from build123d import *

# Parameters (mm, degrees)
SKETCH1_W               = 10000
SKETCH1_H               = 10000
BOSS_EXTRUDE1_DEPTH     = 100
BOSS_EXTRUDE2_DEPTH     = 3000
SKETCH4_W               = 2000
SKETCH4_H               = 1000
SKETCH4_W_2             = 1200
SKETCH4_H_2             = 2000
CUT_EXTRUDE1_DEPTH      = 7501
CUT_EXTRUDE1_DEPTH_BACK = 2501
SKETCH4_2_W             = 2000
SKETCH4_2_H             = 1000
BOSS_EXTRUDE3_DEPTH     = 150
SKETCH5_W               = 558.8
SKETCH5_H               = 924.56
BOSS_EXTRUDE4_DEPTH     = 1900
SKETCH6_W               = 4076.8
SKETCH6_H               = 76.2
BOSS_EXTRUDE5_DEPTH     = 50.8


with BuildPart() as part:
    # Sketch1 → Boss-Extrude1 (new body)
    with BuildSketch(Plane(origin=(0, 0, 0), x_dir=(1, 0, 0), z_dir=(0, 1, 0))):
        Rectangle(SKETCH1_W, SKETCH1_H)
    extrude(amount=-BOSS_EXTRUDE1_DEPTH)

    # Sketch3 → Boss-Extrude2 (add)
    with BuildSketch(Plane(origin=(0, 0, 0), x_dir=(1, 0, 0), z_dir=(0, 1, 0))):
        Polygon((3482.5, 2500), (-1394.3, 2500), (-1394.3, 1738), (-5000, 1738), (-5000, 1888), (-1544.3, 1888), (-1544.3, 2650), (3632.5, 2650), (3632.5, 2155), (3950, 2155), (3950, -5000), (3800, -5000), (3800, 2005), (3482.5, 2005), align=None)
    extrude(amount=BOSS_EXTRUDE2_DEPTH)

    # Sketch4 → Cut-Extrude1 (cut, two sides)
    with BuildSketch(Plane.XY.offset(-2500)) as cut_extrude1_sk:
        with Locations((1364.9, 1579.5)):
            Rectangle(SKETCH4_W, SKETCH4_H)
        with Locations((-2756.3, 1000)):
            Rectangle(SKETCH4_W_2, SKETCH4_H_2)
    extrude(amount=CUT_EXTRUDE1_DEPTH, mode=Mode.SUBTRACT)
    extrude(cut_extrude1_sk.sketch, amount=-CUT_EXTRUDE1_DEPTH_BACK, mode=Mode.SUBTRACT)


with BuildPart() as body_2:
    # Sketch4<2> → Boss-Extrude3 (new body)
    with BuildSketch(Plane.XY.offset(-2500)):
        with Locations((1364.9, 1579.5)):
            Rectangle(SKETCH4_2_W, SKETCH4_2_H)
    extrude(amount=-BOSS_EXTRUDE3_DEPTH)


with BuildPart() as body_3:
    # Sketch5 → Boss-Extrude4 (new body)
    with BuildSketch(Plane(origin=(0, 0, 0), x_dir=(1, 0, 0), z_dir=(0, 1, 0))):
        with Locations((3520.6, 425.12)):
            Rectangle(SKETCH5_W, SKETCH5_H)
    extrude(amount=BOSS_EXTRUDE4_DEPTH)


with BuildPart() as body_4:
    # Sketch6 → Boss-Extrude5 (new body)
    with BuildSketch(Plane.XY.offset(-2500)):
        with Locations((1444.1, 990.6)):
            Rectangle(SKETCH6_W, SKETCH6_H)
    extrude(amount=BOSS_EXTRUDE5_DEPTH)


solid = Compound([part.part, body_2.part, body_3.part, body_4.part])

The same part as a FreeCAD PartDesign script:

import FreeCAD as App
import Part
import Sketcher

V = App.Vector
Q = App.Units.Quantity

doc = App.newDocument("Part")
body = doc.addObject("PartDesign::Body", "Body")

# Sketch on XZ plane
sketch1 = body.newObject("Sketcher::SketchObject", "Sketch")
sketch1.AttachmentSupport = (doc.getObject("XZ_Plane"), [""])
sketch1.MapMode = "FlatFace"
sketch1.addGeometry([
    Part.LineSegment(V(-5000, -5000, 0), V(-5000, 5000, 0)),
    Part.LineSegment(V(-5000, 5000, 0), V(5000, 5000, 0)),
    Part.LineSegment(V(5000, 5000, 0), V(5000, -5000, 0)),
    Part.LineSegment(V(5000, -5000, 0), V(-5000, -5000, 0)),
], False)
sketch1.addConstraint([
    Sketcher.Constraint("Coincident", 0, 2, 1, 1),
    Sketcher.Constraint("Coincident", 1, 2, 2, 1),
    Sketcher.Constraint("Coincident", 2, 2, 3, 1),
    Sketcher.Constraint("Coincident", 3, 2, 0, 1),
    Sketcher.Constraint("Vertical", 0),
    Sketcher.Constraint("Horizontal", 1),
    Sketcher.Constraint("Vertical", 2),
    Sketcher.Constraint("Horizontal", 3),
    Sketcher.Constraint("Symmetric", 0, 2, 2, 2, -1, 1),
    Sketcher.Constraint("Equal", 3, 0),
    Sketcher.Constraint("DistanceX", 1, 1, 1, 2, Q("10000 mm")),
])
pad1 = body.newObject("PartDesign::Pad", "Pad")
pad1.Profile = sketch1
pad1.Length = 100

# Sketch on XZ plane
sketch2 = body.newObject("Sketcher::SketchObject", "Sketch001")
sketch2.AttachmentSupport = (doc.getObject("XZ_Plane"), [""])
sketch2.MapMode = "FlatFace"
sketch2.addGeometry([
    Part.LineSegment(V(-1394, -2500, 0), V(3482, -2500, 0)),  # 0
    Part.LineSegment(V(3482, -2500, 0), V(3482, -2005, 0)),  # 1
    Part.LineSegment(V(3482, -2005, 0), V(3800, -2005, 0)),  # 2
    Part.LineSegment(V(3800, -2005, 0), V(3800, 5000, 0)),  # 3
    Part.LineSegment(V(3800, 5000, 0), V(3950, 5000, 0)),  # 4
    Part.LineSegment(V(3950, 5000, 0), V(3950, -2155, 0)),  # 5
    Part.LineSegment(V(3950, -2155, 0), V(3632, -2155, 0)),  # 6
    Part.LineSegment(V(3632, -2155, 0), V(3632, -2650, 0)),  # 7
    Part.LineSegment(V(3632, -2650, 0), V(-1544, -2650, 0)),  # 8
    Part.LineSegment(V(-1544, -2650, 0), V(-1544, -1888, 0)),  # 9
    Part.LineSegment(V(-1544, -1888, 0), V(-5000, -1888, 0)),  # 10
    Part.LineSegment(V(-5000, -1888, 0), V(-5000, -1738, 0)),  # 11
    Part.LineSegment(V(-5000, -1738, 0), V(-1394, -1738, 0)),  # 12
    Part.LineSegment(V(-1394, -1738, 0), V(-1394, -2500, 0)),  # 13
], False)
sketch2.addConstraint([
    Sketcher.Constraint("Coincident", 0, 2, 1, 1),
    Sketcher.Constraint("Coincident", 1, 2, 2, 1),
    Sketcher.Constraint("Coincident", 2, 2, 3, 1),
    Sketcher.Constraint("Coincident", 3, 2, 4, 1),
    Sketcher.Constraint("Coincident", 4, 2, 5, 1),
    Sketcher.Constraint("Coincident", 5, 2, 6, 1),
    Sketcher.Constraint("Coincident", 6, 2, 7, 1),
    Sketcher.Constraint("Coincident", 7, 2, 8, 1),
    Sketcher.Constraint("Coincident", 8, 2, 9, 1),
    Sketcher.Constraint("Coincident", 9, 2, 10, 1),
    Sketcher.Constraint("Coincident", 10, 2, 11, 1),
    Sketcher.Constraint("Coincident", 11, 2, 12, 1),
    Sketcher.Constraint("Coincident", 12, 2, 13, 1),
    Sketcher.Constraint("Coincident", 13, 2, 0, 1),
    Sketcher.Constraint("Horizontal", 0),
    Sketcher.Constraint("Vertical", 1),
    Sketcher.Constraint("Horizontal", 2),
    Sketcher.Constraint("Vertical", 3),
    Sketcher.Constraint("Horizontal", 4),
    Sketcher.Constraint("Vertical", 5),
    Sketcher.Constraint("Horizontal", 6),
    Sketcher.Constraint("Vertical", 7),
    Sketcher.Constraint("Horizontal", 8),
    Sketcher.Constraint("Vertical", 9),
    Sketcher.Constraint("Horizontal", 10),
    Sketcher.Constraint("Vertical", 11),
    Sketcher.Constraint("Horizontal", 12),
    Sketcher.Constraint("Vertical", 13),
    Sketcher.Constraint("Equal", 2, 6),
    Sketcher.Constraint("Equal", 1, 7),
    Sketcher.Constraint("Equal", 4, 11),
    Sketcher.Constraint("Equal", 9, 13),
    Sketcher.Constraint("DistanceX", 4, 1, 4, 2, Q("150 mm")),
    Sketcher.Constraint("DistanceY", 1, 1, 1, 2, Q("495 mm")),
    Sketcher.Constraint("DistanceY", 3, 1, 3, 2, Q("7005 mm")),
    Sketcher.Constraint("DistanceY", 9, 1, 9, 2, Q("762 mm")),
    Sketcher.Constraint("DistanceX", 0, 1, 0, 2, Q("4876.8 mm")),
    Sketcher.Constraint("DistanceX", 2, 1, 2, 2, Q("317.5 mm")),
    Sketcher.Constraint("DistanceX", 8, 2, 8, 1, Q("5176.8 mm")),
    Sketcher.Constraint("DistanceX", 10, 2, 10, 1, Q("3455.7 mm")),
    Sketcher.Constraint("DistanceY", 0, 2, -1, 1, Q("2500 mm")),
    Sketcher.Constraint("DistanceX", -1, 1, 2, 2, Q("3800 mm")),
])
pad2 = body.newObject("PartDesign::Pad", "Pad001")
pad2.Profile = sketch2
pad2.Length = 3000
pad2.Reversed = True

# Sketch on XY plane
sketch3 = body.newObject("Sketcher::SketchObject", "Sketch002")
sketch3.AttachmentSupport = (doc.getObject("XY_Plane"), [""])
sketch3.MapMode = "FlatFace"
sketch3.AttachmentOffset = App.Placement(V(0, 0, -2500), App.Rotation())
sketch3.addGeometry([
    Part.LineSegment(V(365, 2080, 0), V(365, 1080, 0)),  # 0
    Part.LineSegment(V(365, 1080, 0), V(2365, 1080, 0)),  # 1
    Part.LineSegment(V(2365, 1080, 0), V(2365, 2080, 0)),  # 2
    Part.LineSegment(V(2365, 2080, 0), V(365, 2080, 0)),  # 3
    Part.LineSegment(V(-3356, 2000, 0), V(-3356, 0, 0)),  # 4
    Part.LineSegment(V(-3356, 0, 0), V(-2156, 0, 0)),  # 5
    Part.LineSegment(V(-2156, 0, 0), V(-2156, 2000, 0)),  # 6
    Part.LineSegment(V(-2156, 2000, 0), V(-3356, 2000, 0)),  # 7
], False)
sketch3.addConstraint([
    Sketcher.Constraint("Coincident", 0, 2, 1, 1),
    Sketcher.Constraint("Coincident", 1, 2, 2, 1),
    Sketcher.Constraint("Coincident", 2, 2, 3, 1),
    Sketcher.Constraint("Coincident", 3, 2, 0, 1),
    Sketcher.Constraint("Coincident", 4, 2, 5, 1),
    Sketcher.Constraint("Coincident", 5, 2, 6, 1),
    Sketcher.Constraint("Coincident", 6, 2, 7, 1),
    Sketcher.Constraint("Coincident", 7, 2, 4, 1),
    Sketcher.Constraint("Vertical", 0),
    Sketcher.Constraint("Horizontal", 1),
    Sketcher.Constraint("Vertical", 2),
    Sketcher.Constraint("Horizontal", 3),
    Sketcher.Constraint("Vertical", 4),
    Sketcher.Constraint("Horizontal", 5),
    Sketcher.Constraint("Vertical", 6),
    Sketcher.Constraint("Horizontal", 7),
    Sketcher.Constraint("PointOnObject", 4, 2, -1),
    Sketcher.Constraint("Equal", 3, 4),
    Sketcher.Constraint("DistanceX", 1, 1, 1, 2, Q("2000 mm")),
    Sketcher.Constraint("DistanceX", 5, 1, 5, 2, Q("1200 mm")),
    Sketcher.Constraint("DistanceY", 0, 2, 0, 1, Q("1000 mm")),
    Sketcher.Constraint("DistanceX", -1, 1, 0, 2, Q("364.9 mm")),
    Sketcher.Constraint("DistanceY", -1, 1, 0, 2, Q("1079.5 mm")),
    Sketcher.Constraint("DistanceX", 4, 2, -1, 1, Q("3356.3 mm")),
])
pocket1 = body.newObject("PartDesign::Pocket", "Pocket")
pocket1.Profile = sketch3
pocket1.Type = "ThroughAll"
pocket1.Midplane = True
body2 = doc.addObject("PartDesign::Body", "Body001")

# Sketch on XY plane
sketch4 = body2.newObject("Sketcher::SketchObject", "Sketch003")
sketch4.AttachmentSupport = (doc.getObject("XY_Plane001"), [""])
sketch4.MapMode = "FlatFace"
sketch4.AttachmentOffset = App.Placement(V(0, 0, -2500), App.Rotation())
sketch4.addGeometry([
    Part.LineSegment(V(365, 2080, 0), V(365, 1080, 0)),
    Part.LineSegment(V(365, 1080, 0), V(2365, 1080, 0)),
    Part.LineSegment(V(2365, 1080, 0), V(2365, 2080, 0)),
    Part.LineSegment(V(2365, 2080, 0), V(365, 2080, 0)),
], False)
sketch4.addConstraint([
    Sketcher.Constraint("Coincident", 0, 2, 1, 1),
    Sketcher.Constraint("Coincident", 1, 2, 2, 1),
    Sketcher.Constraint("Coincident", 2, 2, 3, 1),
    Sketcher.Constraint("Coincident", 3, 2, 0, 1),
    Sketcher.Constraint("Vertical", 0),
    Sketcher.Constraint("Horizontal", 1),
    Sketcher.Constraint("Vertical", 2),
    Sketcher.Constraint("Horizontal", 3),
    Sketcher.Constraint("DistanceX", 1, 1, 1, 2, Q("2000 mm")),
    Sketcher.Constraint("DistanceY", 0, 2, 0, 1, Q("1000 mm")),
    Sketcher.Constraint("DistanceX", -1, 1, 0, 2, Q("364.9 mm")),
    Sketcher.Constraint("DistanceY", -1, 1, 0, 2, Q("1079.5 mm")),
])
pad3 = body2.newObject("PartDesign::Pad", "Pad002")
pad3.Profile = sketch4
pad3.Length = 150
pad3.Reversed = True
body3 = doc.addObject("PartDesign::Body", "Body002")

# Sketch on XZ plane
sketch5 = body3.newObject("Sketcher::SketchObject", "Sketch004")
sketch5.AttachmentSupport = (doc.getObject("XZ_Plane002"), [""])
sketch5.MapMode = "FlatFace"
sketch5.addGeometry([
    Part.LineSegment(V(3241, -887, 0), V(3241, 37, 0)),
    Part.LineSegment(V(3241, 37, 0), V(3800, 37, 0)),
    Part.LineSegment(V(3800, 37, 0), V(3800, -887, 0)),
    Part.LineSegment(V(3800, -887, 0), V(3241, -887, 0)),
], False)
sketch5.addConstraint([
    Sketcher.Constraint("Coincident", 0, 2, 1, 1),
    Sketcher.Constraint("Coincident", 1, 2, 2, 1),
    Sketcher.Constraint("Coincident", 2, 2, 3, 1),
    Sketcher.Constraint("Coincident", 3, 2, 0, 1),
    Sketcher.Constraint("Vertical", 0),
    Sketcher.Constraint("Horizontal", 1),
    Sketcher.Constraint("Vertical", 2),
    Sketcher.Constraint("Horizontal", 3),
    Sketcher.Constraint("DistanceX", 1, 1, 1, 2, Q("558.8 mm")),
    Sketcher.Constraint("DistanceX", -1, 1, 1, 2, Q("3800 mm")),
    Sketcher.Constraint("DistanceY", 0, 1, 0, 2, Q("924.56 mm")),
    Sketcher.Constraint("DistanceY", 2, 2, -1, 1, Q("887.4 mm")),
])
pad4 = body3.newObject("PartDesign::Pad", "Pad003")
pad4.Profile = sketch5
pad4.Length = 1900
pad4.Reversed = True
body4 = doc.addObject("PartDesign::Body", "Body003")

# Sketch on XY plane
sketch6 = body4.newObject("Sketcher::SketchObject", "Sketch005")
sketch6.AttachmentSupport = (doc.getObject("XY_Plane003"), [""])
sketch6.MapMode = "FlatFace"
sketch6.AttachmentOffset = App.Placement(V(0, 0, -2500), App.Rotation())
sketch6.addGeometry([
    Part.LineSegment(V(-594, 1029, 0), V(-594, 952, 0)),
    Part.LineSegment(V(-594, 952, 0), V(3482, 952, 0)),
    Part.LineSegment(V(3482, 952, 0), V(3482, 1029, 0)),
    Part.LineSegment(V(3482, 1029, 0), V(-594, 1029, 0)),
], False)
sketch6.addConstraint([
    Sketcher.Constraint("Coincident", 0, 2, 1, 1),
    Sketcher.Constraint("Coincident", 1, 2, 2, 1),
    Sketcher.Constraint("Coincident", 2, 2, 3, 1),
    Sketcher.Constraint("Coincident", 3, 2, 0, 1),
    Sketcher.Constraint("Vertical", 0),
    Sketcher.Constraint("Horizontal", 1),
    Sketcher.Constraint("Vertical", 2),
    Sketcher.Constraint("Horizontal", 3),
    Sketcher.Constraint("DistanceX", 1, 1, 1, 2, Q("4076.8 mm")),
    Sketcher.Constraint("DistanceY", 0, 2, 0, 1, Q("76.2 mm")),
    Sketcher.Constraint("DistanceX", 0, 2, -1, 1, Q("594.3 mm")),
    Sketcher.Constraint("DistanceY", -1, 1, 0, 2, Q("952.5 mm")),
])
pad5 = body4.newObject("PartDesign::Pad", "Pad004")
pad5.Profile = sketch6
pad5.Length = 50.8

doc.recompute()
